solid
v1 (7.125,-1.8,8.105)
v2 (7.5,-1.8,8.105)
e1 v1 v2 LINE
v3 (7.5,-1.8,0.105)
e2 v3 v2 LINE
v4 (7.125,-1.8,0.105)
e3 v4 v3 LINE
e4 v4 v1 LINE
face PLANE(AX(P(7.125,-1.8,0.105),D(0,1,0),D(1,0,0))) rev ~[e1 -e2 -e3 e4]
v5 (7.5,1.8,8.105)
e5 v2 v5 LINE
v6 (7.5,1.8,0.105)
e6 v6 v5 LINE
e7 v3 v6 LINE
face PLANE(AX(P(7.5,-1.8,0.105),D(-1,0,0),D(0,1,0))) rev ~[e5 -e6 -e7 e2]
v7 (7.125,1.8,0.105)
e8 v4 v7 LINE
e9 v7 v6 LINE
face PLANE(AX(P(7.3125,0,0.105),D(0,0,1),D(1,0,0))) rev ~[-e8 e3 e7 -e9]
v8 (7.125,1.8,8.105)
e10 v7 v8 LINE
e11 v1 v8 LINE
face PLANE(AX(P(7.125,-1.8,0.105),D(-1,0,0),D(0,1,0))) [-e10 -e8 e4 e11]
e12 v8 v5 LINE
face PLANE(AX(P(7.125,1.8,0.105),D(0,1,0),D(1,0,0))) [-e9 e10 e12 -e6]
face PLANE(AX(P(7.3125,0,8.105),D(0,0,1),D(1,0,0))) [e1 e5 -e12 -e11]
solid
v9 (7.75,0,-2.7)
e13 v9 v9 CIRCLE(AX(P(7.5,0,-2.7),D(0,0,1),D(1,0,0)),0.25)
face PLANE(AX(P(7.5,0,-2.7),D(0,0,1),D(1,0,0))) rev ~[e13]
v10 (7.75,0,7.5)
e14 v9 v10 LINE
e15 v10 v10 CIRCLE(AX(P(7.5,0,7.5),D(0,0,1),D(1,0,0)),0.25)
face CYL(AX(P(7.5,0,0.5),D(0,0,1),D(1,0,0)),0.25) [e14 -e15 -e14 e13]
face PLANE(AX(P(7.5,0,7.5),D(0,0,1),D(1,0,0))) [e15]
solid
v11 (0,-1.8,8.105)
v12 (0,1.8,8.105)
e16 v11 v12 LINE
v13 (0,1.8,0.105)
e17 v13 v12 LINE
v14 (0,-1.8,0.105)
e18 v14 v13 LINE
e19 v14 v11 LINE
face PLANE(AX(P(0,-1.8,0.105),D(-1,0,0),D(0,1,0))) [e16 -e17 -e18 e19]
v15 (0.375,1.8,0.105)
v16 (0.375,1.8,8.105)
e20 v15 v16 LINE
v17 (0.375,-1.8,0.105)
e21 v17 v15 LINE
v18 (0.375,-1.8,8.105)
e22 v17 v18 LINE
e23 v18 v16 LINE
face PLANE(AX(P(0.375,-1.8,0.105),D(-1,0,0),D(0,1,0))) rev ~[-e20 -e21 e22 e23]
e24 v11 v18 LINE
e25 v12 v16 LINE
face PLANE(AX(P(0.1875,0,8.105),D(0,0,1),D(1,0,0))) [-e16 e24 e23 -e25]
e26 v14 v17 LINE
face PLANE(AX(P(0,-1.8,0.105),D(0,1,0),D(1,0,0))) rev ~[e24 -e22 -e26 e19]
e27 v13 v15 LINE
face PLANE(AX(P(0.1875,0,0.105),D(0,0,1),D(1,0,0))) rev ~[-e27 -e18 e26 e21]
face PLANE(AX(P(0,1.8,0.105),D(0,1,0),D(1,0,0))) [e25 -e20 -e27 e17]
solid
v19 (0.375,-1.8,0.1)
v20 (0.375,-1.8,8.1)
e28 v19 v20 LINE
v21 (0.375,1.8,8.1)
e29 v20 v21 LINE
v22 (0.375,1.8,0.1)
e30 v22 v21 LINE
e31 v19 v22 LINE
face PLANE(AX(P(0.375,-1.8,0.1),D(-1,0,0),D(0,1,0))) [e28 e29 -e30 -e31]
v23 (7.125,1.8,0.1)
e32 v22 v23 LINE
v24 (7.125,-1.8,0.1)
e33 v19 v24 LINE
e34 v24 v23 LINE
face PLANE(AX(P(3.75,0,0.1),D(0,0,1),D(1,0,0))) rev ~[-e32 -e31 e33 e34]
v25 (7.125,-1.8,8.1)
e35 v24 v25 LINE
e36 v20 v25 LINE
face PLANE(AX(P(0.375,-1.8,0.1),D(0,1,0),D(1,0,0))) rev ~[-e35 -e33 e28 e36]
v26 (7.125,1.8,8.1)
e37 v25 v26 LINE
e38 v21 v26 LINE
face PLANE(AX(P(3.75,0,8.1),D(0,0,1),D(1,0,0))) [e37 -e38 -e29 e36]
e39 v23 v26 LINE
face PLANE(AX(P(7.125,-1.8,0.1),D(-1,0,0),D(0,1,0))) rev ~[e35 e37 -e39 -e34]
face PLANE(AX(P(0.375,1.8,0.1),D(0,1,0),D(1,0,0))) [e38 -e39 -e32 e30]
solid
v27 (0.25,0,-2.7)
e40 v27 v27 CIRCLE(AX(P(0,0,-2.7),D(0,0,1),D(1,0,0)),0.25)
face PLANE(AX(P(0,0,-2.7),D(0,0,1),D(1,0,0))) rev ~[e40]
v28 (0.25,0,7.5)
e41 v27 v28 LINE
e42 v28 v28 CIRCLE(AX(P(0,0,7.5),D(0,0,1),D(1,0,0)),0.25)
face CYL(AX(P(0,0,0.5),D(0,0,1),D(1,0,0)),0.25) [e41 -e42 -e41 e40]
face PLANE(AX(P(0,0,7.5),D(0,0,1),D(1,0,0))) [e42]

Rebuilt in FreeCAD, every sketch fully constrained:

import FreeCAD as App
import Part
import Sketcher
from FreeCAD import Vector
Q = App.Units.Quantity

doc = App.newDocument("Part")
body = doc.addObject("PartDesign::Body", "Body")

# Sketch on XY plane
sketch1 = body.newObject("Sketcher::SketchObject", "Sketch")
sketch1.AttachmentSupport = (doc.getObject("XY_Plane"), [""])
sketch1.MapMode = "FlatFace"
sketch1.AttachmentOffset = App.Placement(Vector(0, 0, 0.1), App.Rotation())
sketch1.addGeometry(Part.LineSegment(Vector(0.375, 1.8, 0), Vector(0.375, -1.8, 0)), False)
sketch1.addGeometry(Part.LineSegment(Vector(0.375, -1.8, 0), Vector(7.125, -1.8, 0)), False)
sketch1.addGeometry(Part.LineSegment(Vector(7.125, -1.8, 0), Vector(7.125, 1.8, 0)), False)
sketch1.addGeometry(Part.LineSegment(Vector(7.125, 1.8, 0), Vector(0.375, 1.8, 0)), False)
sketch1.addConstraint(Sketcher.Constraint("Coincident", 0, 2, 1, 1))
sketch1.addConstraint(Sketcher.Constraint("Coincident", 1, 2, 2, 1))
sketch1.addConstraint(Sketcher.Constraint("Coincident", 2, 2, 3, 1))
sketch1.addConstraint(Sketcher.Constraint("Coincident", 3, 2, 0, 1))
sketch1.addConstraint(Sketcher.Constraint("Vertical", 0))
sketch1.addConstraint(Sketcher.Constraint("Horizontal", 1))
sketch1.addConstraint(Sketcher.Constraint("Vertical", 2))
sketch1.addConstraint(Sketcher.Constraint("Horizontal", 3))
sketch1.addConstraint(Sketcher.Constraint("DistanceY", 0, 2, 0, 1, Q("3.6 mm")))
sketch1.addConstraint(Sketcher.Constraint("DistanceX", 1, 1, 1, 2, Q("6.75 mm")))
sketch1.addConstraint(Sketcher.Constraint("DistanceY", 0, 2, -1, 1, Q("1.8 mm")))
sketch1.addConstraint(Sketcher.Constraint("DistanceX", -1, 1, 0, 2, Q("0.375 mm")))
pad1 = body.newObject("PartDesign::Pad", "Pad")
pad1.Profile = sketch1
pad1.Length = 8
body2 = doc.addObject("PartDesign::Body", "Body001")
body2.AllowCompound = True

# Sketch on XY plane
sketch2 = body2.newObject("Sketcher::SketchObject", "Sketch001")
sketch2.AttachmentSupport = (doc.getObject("XY_Plane001"), [""])
sketch2.MapMode = "FlatFace"
sketch2.AttachmentOffset = App.Placement(Vector(0, 0, 0.5), App.Rotation())
sketch2.addGeometry(Part.Circle(Vector(0, 0, 0), Vector(0, 0, 1), 0.25), False)
sketch2.addGeometry(Part.Circle(Vector(7.5, 0, 0), Vector(0, 0, 1), 0.25), False)
sketch2.addConstraint(Sketcher.Constraint("Coincident", 0, 3, -1, 1))
sketch2.addConstraint(Sketcher.Constraint("Equal", 0, 1))
sketch2.addConstraint(Sketcher.Constraint("PointOnObject", 1, 3, -1))
sketch2.addConstraint(Sketcher.Constraint("Diameter", 0, Q("0.5 mm")))
sketch2.addConstraint(Sketcher.Constraint("DistanceX", -1, 1, 1, 3, Q("7.5 mm")))
pad2 = body2.newObject("PartDesign::Pad", "Pad001")
pad2.Profile = sketch2
pad2.Type = "TwoLengths"
pad2.Length = 7
pad2.Length2 = 3.2
body3 = doc.addObject("PartDesign::Body", "Body002")
body3.AllowCompound = True

# Sketch on XY plane
sketch3 = body3.newObject("Sketcher::SketchObject", "Sketch002")
sketch3.AttachmentSupport = (doc.getObject("XY_Plane002"), [""])
sketch3.MapMode = "FlatFace"
sketch3.AttachmentOffset = App.Placement(Vector(0, 0, 0.105), App.Rotation())
sketch3.addGeometry(Part.LineSegment(Vector(0, 1.8, 0), Vector(0, -1.8, 0)), False)
sketch3.addGeometry(Part.LineSegment(Vector(0, -1.8, 0), Vector(0.375, -1.8, 0)), False)
sketch3.addGeometry(Part.LineSegment(Vector(0.375, -1.8, 0), Vector(0.375, 1.8, 0)), False)
sketch3.addGeometry(Part.LineSegment(Vector(0.375, 1.8, 0), Vector(0, 1.8, 0)), False)
sketch3.addGeometry(Part.LineSegment(Vector(7.125, 1.8, 0), Vector(7.125, -1.8, 0)), False)
sketch3.addGeometry(Part.LineSegment(Vector(7.125, -1.8, 0), Vector(7.5, -1.8, 0)), False)
sketch3.addGeometry(Part.LineSegment(Vector(7.5, -1.8, 0), Vector(7.5, 1.8, 0)), False)
sketch3.addGeometry(Part.LineSegment(Vector(7.5, 1.8, 0), Vector(7.125, 1.8, 0)), False)
sketch3.addConstraint(Sketcher.Constraint("Coincident", 0, 2, 1, 1))
sketch3.addConstraint(Sketcher.Constraint("Coincident", 1, 2, 2, 1))
sketch3.addConstraint(Sketcher.Constraint("Coincident", 2, 2, 3, 1))
sketch3.addConstraint(Sketcher.Constraint("Coincident", 3, 2, 0, 1))
sketch3.addConstraint(Sketcher.Constraint("Coincident", 4, 2, 5, 1))
sketch3.addConstraint(Sketcher.Constraint("Coincident", 5, 2, 6, 1))
sketch3.addConstraint(Sketcher.Constraint("Coincident", 6, 2, 7, 1))
sketch3.addConstraint(Sketcher.Constraint("Coincident", 7, 2, 4, 1))
sketch3.addConstraint(Sketcher.Constraint("Vertical", 0))
sketch3.addConstraint(Sketcher.Constraint("Horizontal", 1))
sketch3.addConstraint(Sketcher.Constraint("Vertical", 2))
sketch3.addConstraint(Sketcher.Constraint("Horizontal", 3))
sketch3.addConstraint(Sketcher.Constraint("Vertical", 4))
sketch3.addConstraint(Sketcher.Constraint("Horizontal", 5))
sketch3.addConstraint(Sketcher.Constraint("Vertical", 6))
sketch3.addConstraint(Sketcher.Constraint("Horizontal", 7))
sketch3.addConstraint(Sketcher.Constraint("Symmetric", 0, 2, 3, 2, -1, 1))
sketch3.addConstraint(Sketcher.Constraint("Horizontal", 1, 2, 4, 2))
sketch3.addConstraint(Sketcher.Constraint("Horizontal", 3, 2, 6, 2))
sketch3.addConstraint(Sketcher.Constraint("Equal", 3, 5))
sketch3.addConstraint(Sketcher.Constraint("DistanceY", 0, 2, 0, 1, Q("3.6 mm")))
sketch3.addConstraint(Sketcher.Constraint("DistanceX", -1, 1, 5, 2, Q("7.5 mm")))
sketch3.addConstraint(Sketcher.Constraint("DistanceX", 1, 1, 1, 2, Q("0.375 mm")))
pad3 = body3.newObject("PartDesign::Pad", "Pad002")
pad3.Profile = sketch3
pad3.Length = 8

doc.recompute()
